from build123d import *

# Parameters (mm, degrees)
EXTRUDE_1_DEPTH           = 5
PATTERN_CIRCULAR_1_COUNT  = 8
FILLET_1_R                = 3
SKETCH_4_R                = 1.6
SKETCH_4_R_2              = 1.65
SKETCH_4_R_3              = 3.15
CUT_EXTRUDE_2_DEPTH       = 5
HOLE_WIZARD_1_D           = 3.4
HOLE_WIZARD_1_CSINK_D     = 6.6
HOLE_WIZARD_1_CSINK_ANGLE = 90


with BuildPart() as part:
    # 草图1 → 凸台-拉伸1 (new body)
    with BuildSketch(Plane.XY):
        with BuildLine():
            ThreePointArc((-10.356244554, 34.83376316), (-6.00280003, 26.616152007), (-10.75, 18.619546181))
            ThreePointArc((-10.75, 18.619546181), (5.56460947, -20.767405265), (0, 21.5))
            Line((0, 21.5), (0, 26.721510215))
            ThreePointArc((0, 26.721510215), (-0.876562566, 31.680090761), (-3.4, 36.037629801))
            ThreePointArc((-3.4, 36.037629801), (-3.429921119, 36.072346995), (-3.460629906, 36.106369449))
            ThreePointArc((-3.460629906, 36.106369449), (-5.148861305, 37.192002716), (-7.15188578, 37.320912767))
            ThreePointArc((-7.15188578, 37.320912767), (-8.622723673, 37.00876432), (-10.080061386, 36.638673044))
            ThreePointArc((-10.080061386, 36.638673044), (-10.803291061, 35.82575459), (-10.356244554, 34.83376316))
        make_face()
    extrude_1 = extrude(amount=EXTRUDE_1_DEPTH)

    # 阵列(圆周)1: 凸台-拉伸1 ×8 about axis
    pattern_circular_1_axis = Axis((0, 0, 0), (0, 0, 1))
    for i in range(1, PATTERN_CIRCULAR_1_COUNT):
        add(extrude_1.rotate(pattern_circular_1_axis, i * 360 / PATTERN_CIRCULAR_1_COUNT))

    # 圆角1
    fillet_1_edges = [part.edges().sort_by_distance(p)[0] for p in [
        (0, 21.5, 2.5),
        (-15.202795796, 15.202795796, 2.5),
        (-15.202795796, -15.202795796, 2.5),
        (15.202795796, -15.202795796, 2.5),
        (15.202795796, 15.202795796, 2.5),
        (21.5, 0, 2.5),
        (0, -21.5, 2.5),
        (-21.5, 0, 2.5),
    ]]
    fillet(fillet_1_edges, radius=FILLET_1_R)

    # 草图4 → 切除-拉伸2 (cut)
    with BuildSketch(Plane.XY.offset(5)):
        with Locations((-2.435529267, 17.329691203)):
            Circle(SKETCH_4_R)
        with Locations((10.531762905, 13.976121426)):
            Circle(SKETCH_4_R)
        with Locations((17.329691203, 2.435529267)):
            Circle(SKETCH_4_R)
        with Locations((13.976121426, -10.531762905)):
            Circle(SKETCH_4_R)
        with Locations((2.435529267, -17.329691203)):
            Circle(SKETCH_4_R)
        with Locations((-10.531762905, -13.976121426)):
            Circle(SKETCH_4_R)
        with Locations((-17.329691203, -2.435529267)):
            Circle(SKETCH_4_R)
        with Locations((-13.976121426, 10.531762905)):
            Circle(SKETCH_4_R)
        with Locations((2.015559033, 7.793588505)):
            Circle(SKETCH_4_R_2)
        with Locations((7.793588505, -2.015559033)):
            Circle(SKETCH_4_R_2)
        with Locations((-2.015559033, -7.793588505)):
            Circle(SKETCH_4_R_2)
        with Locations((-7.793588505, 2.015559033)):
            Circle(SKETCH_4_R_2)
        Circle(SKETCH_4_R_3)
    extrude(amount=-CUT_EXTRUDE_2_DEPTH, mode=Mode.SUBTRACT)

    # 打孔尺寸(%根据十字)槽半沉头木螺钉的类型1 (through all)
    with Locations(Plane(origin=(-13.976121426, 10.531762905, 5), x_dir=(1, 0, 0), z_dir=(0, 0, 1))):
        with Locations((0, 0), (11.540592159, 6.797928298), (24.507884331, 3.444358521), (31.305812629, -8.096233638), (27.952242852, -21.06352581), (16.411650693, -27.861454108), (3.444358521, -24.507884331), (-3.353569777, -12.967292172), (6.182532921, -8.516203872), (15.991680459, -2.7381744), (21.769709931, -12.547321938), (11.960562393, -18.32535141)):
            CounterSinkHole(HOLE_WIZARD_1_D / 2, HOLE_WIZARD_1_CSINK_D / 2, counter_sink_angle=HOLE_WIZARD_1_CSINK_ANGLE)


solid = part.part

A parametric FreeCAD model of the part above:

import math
import FreeCAD as App
import Part
import Sketcher
from FreeCAD import Vector


def edges_at(feature, points):
    """Names of the edges that pass closest to the given points."""
    edges = feature.Shape.Edges
    near = lambda p: min(range(len(edges)), key=lambda i: edges[i].distToShape(Part.Vertex(*p))[0])
    return sorted({f"Edge{near(p) + 1}" for p in points})

doc = App.newDocument("Part")
body = doc.addObject("PartDesign::Body", "Body")

# Sketch on XY plane
sketch1 = body.newObject("Sketcher::SketchObject", "Sketch")
sketch1.AttachmentSupport = (doc.getObject("XY_Plane"), [""])
sketch1.MapMode = "FlatFace"
sketch1.addGeometry([
    Part.ArcOfCircle(Part.Circle(Vector(-15.5, 26.85, 0), Vector(0, 0, 1), 9.5), math.radians(-60), math.radians(57)),  # 0
    Part.ArcOfCircle(Part.Circle(Vector(0, 0, 0), Vector(0, 0, 1), 21.5), math.radians(120), math.radians(450)),  # 1
    Part.LineSegment(Vector(0, 21.5, 0), Vector(0, 26.72, 0)),  # 2
    Part.ArcOfCircle(Part.Circle(Vector(-14.46, 26.72, 0), Vector(0, 0, 1), 14.46), math.radians(0), math.radians(40)),  # 3
    Part.ArcOfCircle(Part.Circle(Vector(-4.93, 34.75, 0), Vector(0, 0, 1), 2), math.radians(40.1), math.radians(42.73)),  # 4
    Part.ArcOfCircle(Part.Circle(Vector(-6.4, 33.39, 0), Vector(0, 0, 1), 4), math.radians(43), math.radians(101)),  # 5
    Part.ArcOfCircle(Part.Circle(Vector(0, 0, 0), Vector(0, 0, 1), 38), math.radians(100.85), math.radians(105.38)),  # 6
    Part.ArcOfCircle(Part.Circle(Vector(-9.81, 35.67, 0), Vector(0, 0, 1), 1), math.radians(105), math.radians(237)),  # 7
], False)
sketch1.addConstraint([
    Sketcher.Constraint("Tangent", 0, 1, 1, 1),
    Sketcher.Constraint("Coincident", 1, 2, 2, 1),
    Sketcher.Constraint("Tangent", 2, 2, 3, 1),
    Sketcher.Constraint("Tangent", 3, 2, 4, 1),
    Sketcher.Constraint("Tangent", 4, 2, 5, 1),
    Sketcher.Constraint("Tangent", 5, 2, 6, 1),
    Sketcher.Constraint("Tangent", 6, 2, 7, 1),
    Sketcher.Constraint("Tangent", 7, 2, 0, 2),
    Sketcher.Constraint("Vertical", 2),
    Sketcher.Constraint("Coincident", 1, 3, -1, 1),
    Sketcher.Constraint("Coincident", 6, 3, -1, 1),
    Sketcher.Constraint("PointOnObject", 1, 2, -2),
    Sketcher.Constraint("Radius", 4, 2.0),
    Sketcher.Constraint("Radius", 5, 4.0),
    Sketcher.Constraint("Radius", 6, 37.999999),
    Sketcher.Constraint("Radius", 7, 1.0),
    Sketcher.Constraint("Radius", 0, 9.5),
    Sketcher.Constraint("Radius", 1, 21.5),
    Sketcher.Constraint("DistanceX", 0, 3, -1, 1, 15.5),
    Sketcher.Constraint("DistanceX", 3, 2, -1, 1, 3.4),
    Sketcher.Constraint("Radius", 3, 14.463248),
    Sketcher.Constraint("DistanceY", 2, 1, 2, 2, 5.22151),
])
pad1 = body.newObject("PartDesign::Pad", "Pad")
pad1.Profile = sketch1
pad1.Length = 5
doc.recompute()

polarpattern = body.newObject("PartDesign::PolarPattern", "PolarPattern")
polarpattern.Originals = [pad1]
polarpattern.Axis = (doc.getObject("Z_Axis"), [""])
polarpattern.Angle = 360
polarpattern.Occurrences = 8
body.Tip = polarpattern
doc.recompute()

fillet = body.newObject("PartDesign::Fillet", "Fillet")
fillet.Base = (polarpattern, edges_at(polarpattern, [
    (0, 21.5, 2.5),
    (-15.203, 15.203, 2.5),
    (-15.203, -15.203, 2.5),
    (15.203, -15.203, 2.5),
    (15.203, 15.203, 2.5),
    (21.5, 0, 2.5),
    (0, -21.5, 2.5),
    (-21.5, 0, 2.5),
]))
fillet.Radius = 3

# Sketch on XY plane
sketch2 = body.newObject("Sketcher::SketchObject", "Sketch001")
sketch2.AttachmentSupport = (doc.getObject("XY_Plane"), [""])
sketch2.MapMode = "FlatFace"
sketch2.AttachmentOffset = App.Placement(Vector(0, 0, 5), App.Rotation())
sketch2.addGeometry([
    Part.Circle(Vector(-2.4, 17.3, 0), Vector(0, 0, 1), 1.6),  # 0
    Part.Circle(Vector(10.5, 14, 0), Vector(0, 0, 1), 1.6),  # 1
    Part.Circle(Vector(17.3, 2.4, 0), Vector(0, 0, 1), 1.6),  # 2
    Part.Circle(Vector(14, -10.5, 0), Vector(0, 0, 1), 1.6),  # 3
    Part.Circle(Vector(2.4, -17.3, 0), Vector(0, 0, 1), 1.6),  # 4
    Part.Circle(Vector(-10.5, -14, 0), Vector(0, 0, 1), 1.6),  # 5
    Part.Circle(Vector(-17.3, -2.4, 0), Vector(0, 0, 1), 1.6),  # 6
    Part.Circle(Vector(-14, 10.5, 0), Vector(0, 0, 1), 1.6),  # 7
    Part.Circle(Vector(2, 7.8, 0), Vector(0, 0, 1), 1.6),  # 8
    Part.Circle(Vector(7.8, -2, 0), Vector(0, 0, 1), 1.6),  # 9
    Part.Circle(Vector(-2, -7.8, 0), Vector(0, 0, 1), 1.6),  # 10
    Part.Circle(Vector(-7.8, 2, 0), Vector(0, 0, 1), 1.6),  # 11
    Part.Circle(Vector(0, 0, 0), Vector(0, 0, 1), 3.1),  # 12
], False)
sketch2.addConstraint([
    Sketcher.Constraint("Coincident", 12, 3, -1, 1),
    Sketcher.Constraint("Equal", 0, 1),
    Sketcher.Constraint("Equal", 1, 2),
    Sketcher.Constraint("Equal", 2, 3),
    Sketcher.Constraint("Equal", 3, 4),
    Sketcher.Constraint("Equal", 4, 5),
    Sketcher.Constraint("Equal", 5, 6),
    Sketcher.Constraint("Equal", 6, 7),
    Sketcher.Constraint("Equal", 8, 9),
    Sketcher.Constraint("Equal", 9, 10),
    Sketcher.Constraint("Equal", 10, 11),
    Sketcher.Constraint("Symmetric", 0, 3, 4, 3, -1, 1),
    Sketcher.Constraint("Symmetric", 1, 3, 5, 3, -1, 1),
    Sketcher.Constraint("Symmetric", 2, 3, 6, 3, -1, 1),
    Sketcher.Constraint("Symmetric", 3, 3, 7, 3, -1, 1),
    Sketcher.Constraint("Symmetric", 8, 3, 10, 3, -1, 1),
    Sketcher.Constraint("Symmetric", 9, 3, 11, 3, -1, 1),
    Sketcher.Constraint("Diameter", 0, 3.2),
    Sketcher.Constraint("Diameter", 8, 3.3),
    Sketcher.Constraint("Diameter", 12, 6.3),
    Sketcher.Constraint("DistanceX", 0, 3, -1, 1, 2.435529),
    Sketcher.Constraint("DistanceY", -1, 1, 0, 3, 17.329691),
    Sketcher.Constraint("DistanceY", -1, 1, 1, 3, 13.976121),
    Sketcher.Constraint("DistanceX", -1, 1, 2, 3, 17.329691),
    Sketcher.Constraint("DistanceY", -1, 1, 2, 3, 2.435529),
    Sketcher.Constraint("DistanceX", -1, 1, 3, 3, 13.976121),
    Sketcher.Constraint("DistanceX", -1, 1, 8, 3, 2.015559),
    Sketcher.Constraint("DistanceY", -1, 1, 8, 3, 7.793589),
    Sketcher.Constraint("DistanceX", -1, 1, 9, 3, 7.793589),
    Sketcher.Constraint("DistanceY", 9, 3, -1, 1, 2.015559),
    Sketcher.Constraint("DistanceX", 1, 3, 2, 3, 6.797928),
    Sketcher.Constraint("DistanceY", 4, 3, 3, 3, 6.797928),
])
pocket1 = body.newObject("PartDesign::Pocket", "Pocket")
pocket1.Profile = sketch2
pocket1.Length = 5

# Sketch on XY plane
sketch3 = body.newObject("Sketcher::SketchObject", "Sketch002")
sketch3.AttachmentSupport = (doc.getObject("XY_Plane"), [""])
sketch3.MapMode = "FlatFace"
sketch3.AttachmentOffset = App.Placement(Vector(0, 0, 5), App.Rotation())
sketch3.addGeometry([
    Part.Circle(Vector(-14, 10.5, 0), Vector(0, 0, 1), 1.7),  # 0
    Part.Circle(Vector(-2.4, 17.3, 0), Vector(0, 0, 1), 1.7),  # 1
    Part.Circle(Vector(10.5, 14, 0), Vector(0, 0, 1), 1.7),  # 2
    Part.Circle(Vector(17.3, 2.4, 0), Vector(0, 0, 1), 1.7),  # 3
    Part.Circle(Vector(14, -10.5, 0), Vector(0, 0, 1), 1.7),  # 4
    Part.Circle(Vector(2.4, -17.3, 0), Vector(0, 0, 1), 1.7),  # 5
    Part.Circle(Vector(-10.5, -14, 0), Vector(0, 0, 1), 1.7),  # 6
    Part.Circle(Vector(-17.3, -2.4, 0), Vector(0, 0, 1), 1.7),  # 7
    Part.Circle(Vector(-7.8, 2, 0), Vector(0, 0, 1), 1.7),  # 8
    Part.Circle(Vector(2, 7.8, 0), Vector(0, 0, 1), 1.7),  # 9
    Part.Circle(Vector(7.8, -2, 0), Vector(0, 0, 1), 1.7),  # 10
    Part.Circle(Vector(-2, -7.8, 0), Vector(0, 0, 1), 1.7),  # 11
], False)
sketch3.addConstraint([
    Sketcher.Constraint("Equal", 0, 1),
    Sketcher.Constraint("Equal", 1, 2),
    Sketcher.Constraint("Equal", 2, 3),
    Sketcher.Constraint("Equal", 3, 4),
    Sketcher.Constraint("Equal", 4, 5),
    Sketcher.Constraint("Equal", 5, 6),
    Sketcher.Constraint("Equal", 6, 7),
    Sketcher.Constraint("Equal", 7, 8),
    Sketcher.Constraint("Equal", 8, 9),
    Sketcher.Constraint("Equal", 9, 10),
    Sketcher.Constraint("Equal", 10, 11),
    Sketcher.Constraint("Symmetric", 0, 3, 4, 3, -1, 1),
    Sketcher.Constraint("Symmetric", 1, 3, 5, 3, -1, 1),
    Sketcher.Constraint("Symmetric", 2, 3, 6, 3, -1, 1),
    Sketcher.Constraint("Symmetric", 3, 3, 7, 3, -1, 1),
    Sketcher.Constraint("Symmetric", 8, 3, 10, 3, -1, 1),
    Sketcher.Constraint("Symmetric", 9, 3, 11, 3, -1, 1),
    Sketcher.Constraint("Diameter", 0, 3.4),
    Sketcher.Constraint("DistanceX", 0, 3, -1, 1, 13.976121),
    Sketcher.Constraint("DistanceX", 1, 3, -1, 1, 2.435529),
    Sketcher.Constraint("DistanceY", -1, 1, 1, 3, 17.329691),
    Sketcher.Constraint("DistanceY", -1, 1, 2, 3, 13.976121),
    Sketcher.Constraint("DistanceX", -1, 1, 3, 3, 17.329691),
    Sketcher.Constraint("DistanceY", -1, 1, 3, 3, 2.435529),
    Sketcher.Constraint("DistanceX", 8, 3, -1, 1, 7.793589),
    Sketcher.Constraint("DistanceY", -1, 1, 8, 3, 2.015559),
    Sketcher.Constraint("DistanceX", -1, 1, 9, 3, 2.015559),
    Sketcher.Constraint("DistanceY", -1, 1, 9, 3, 7.793589),
    Sketcher.Constraint("DistanceY", 0, 3, 1, 3, 6.797928),
    Sketcher.Constraint("DistanceX", 2, 3, 3, 3, 6.797928),
])
doc.recompute()
hole = body.newObject("PartDesign::Hole", "Hole")
hole.Profile = sketch3
hole.ThreadType = "None"
hole.Diameter = 3.4
hole.DepthType = "ThroughAll"
hole.HoleCutType = "Countersink"
hole.HoleCutDiameter = 6.6
hole.HoleCutCountersinkAngle = 90

doc.recompute()
